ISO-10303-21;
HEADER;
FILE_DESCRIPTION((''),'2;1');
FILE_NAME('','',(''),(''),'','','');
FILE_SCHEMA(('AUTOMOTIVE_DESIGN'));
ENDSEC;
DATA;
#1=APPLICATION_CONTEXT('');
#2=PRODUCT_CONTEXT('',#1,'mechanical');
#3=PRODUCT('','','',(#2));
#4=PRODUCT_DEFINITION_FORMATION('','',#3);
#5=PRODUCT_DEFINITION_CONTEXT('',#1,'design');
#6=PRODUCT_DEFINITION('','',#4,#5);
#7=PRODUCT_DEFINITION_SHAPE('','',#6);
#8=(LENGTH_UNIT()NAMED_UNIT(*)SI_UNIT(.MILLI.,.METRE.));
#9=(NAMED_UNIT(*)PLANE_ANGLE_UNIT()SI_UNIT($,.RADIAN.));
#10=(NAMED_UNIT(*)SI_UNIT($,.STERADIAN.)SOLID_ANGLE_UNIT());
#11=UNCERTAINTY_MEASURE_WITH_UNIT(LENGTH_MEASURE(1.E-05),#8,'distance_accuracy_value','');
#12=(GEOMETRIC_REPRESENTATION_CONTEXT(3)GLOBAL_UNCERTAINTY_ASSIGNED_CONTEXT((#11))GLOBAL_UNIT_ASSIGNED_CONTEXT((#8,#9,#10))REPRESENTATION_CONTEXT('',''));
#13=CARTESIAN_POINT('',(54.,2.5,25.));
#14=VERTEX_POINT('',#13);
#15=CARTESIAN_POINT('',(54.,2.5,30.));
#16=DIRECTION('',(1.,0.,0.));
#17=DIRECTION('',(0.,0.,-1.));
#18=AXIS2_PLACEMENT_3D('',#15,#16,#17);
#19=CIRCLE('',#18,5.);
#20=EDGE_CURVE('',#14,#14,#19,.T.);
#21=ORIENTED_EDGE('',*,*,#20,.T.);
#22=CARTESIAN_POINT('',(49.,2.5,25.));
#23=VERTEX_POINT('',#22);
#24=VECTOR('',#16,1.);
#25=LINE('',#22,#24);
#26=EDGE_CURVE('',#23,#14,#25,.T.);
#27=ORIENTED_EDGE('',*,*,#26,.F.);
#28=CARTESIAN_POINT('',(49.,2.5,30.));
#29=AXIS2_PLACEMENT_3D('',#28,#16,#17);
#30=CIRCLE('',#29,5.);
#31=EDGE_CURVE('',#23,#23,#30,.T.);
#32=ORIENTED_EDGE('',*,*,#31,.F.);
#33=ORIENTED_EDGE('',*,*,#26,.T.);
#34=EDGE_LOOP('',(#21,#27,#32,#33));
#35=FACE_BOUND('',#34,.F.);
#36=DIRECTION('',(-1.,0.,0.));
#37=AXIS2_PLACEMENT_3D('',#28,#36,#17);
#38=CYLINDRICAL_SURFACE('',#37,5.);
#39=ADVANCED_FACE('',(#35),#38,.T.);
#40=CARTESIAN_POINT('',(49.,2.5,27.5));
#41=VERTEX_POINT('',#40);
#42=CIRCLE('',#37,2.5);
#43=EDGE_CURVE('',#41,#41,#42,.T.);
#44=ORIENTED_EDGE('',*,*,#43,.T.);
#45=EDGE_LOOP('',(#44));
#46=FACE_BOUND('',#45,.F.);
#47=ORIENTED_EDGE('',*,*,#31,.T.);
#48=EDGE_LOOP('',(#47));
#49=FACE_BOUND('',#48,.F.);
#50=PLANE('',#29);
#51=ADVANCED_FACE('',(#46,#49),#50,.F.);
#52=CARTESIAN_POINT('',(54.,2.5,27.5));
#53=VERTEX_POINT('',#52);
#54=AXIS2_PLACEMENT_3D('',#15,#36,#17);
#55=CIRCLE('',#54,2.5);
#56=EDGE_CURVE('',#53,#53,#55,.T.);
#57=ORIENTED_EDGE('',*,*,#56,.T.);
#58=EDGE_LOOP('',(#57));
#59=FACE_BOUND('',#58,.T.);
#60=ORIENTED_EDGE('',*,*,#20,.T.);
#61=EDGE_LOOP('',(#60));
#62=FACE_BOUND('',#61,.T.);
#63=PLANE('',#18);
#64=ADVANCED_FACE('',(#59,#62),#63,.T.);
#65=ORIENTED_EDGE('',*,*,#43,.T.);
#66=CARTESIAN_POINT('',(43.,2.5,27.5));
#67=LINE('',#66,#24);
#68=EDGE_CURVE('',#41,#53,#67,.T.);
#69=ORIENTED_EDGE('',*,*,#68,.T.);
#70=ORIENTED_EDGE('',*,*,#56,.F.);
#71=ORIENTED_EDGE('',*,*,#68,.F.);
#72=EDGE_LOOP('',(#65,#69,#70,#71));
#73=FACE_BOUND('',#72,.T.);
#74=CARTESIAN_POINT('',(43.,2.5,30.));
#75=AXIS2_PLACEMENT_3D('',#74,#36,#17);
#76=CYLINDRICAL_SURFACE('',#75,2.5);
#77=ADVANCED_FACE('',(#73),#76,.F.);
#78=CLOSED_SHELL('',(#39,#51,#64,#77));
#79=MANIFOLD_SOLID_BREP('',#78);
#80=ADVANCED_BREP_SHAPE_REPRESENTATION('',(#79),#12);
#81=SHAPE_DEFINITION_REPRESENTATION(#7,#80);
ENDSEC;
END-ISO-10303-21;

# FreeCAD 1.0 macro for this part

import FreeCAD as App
import Part
import Sketcher

doc = App.newDocument("Part")
body = doc.addObject("PartDesign::Body", "Body")

# Sketch on XY plane
sketch1 = body.newObject("Sketcher::SketchObject", "Sketch")
sketch1.AttachmentSupport = (doc.getObject("XY_Plane"), [""])
sketch1.MapMode = "FlatFace"
sketch1.AttachmentOffset = App.Placement(App.Vector(0, 0, 43), App.Rotation())
sketch1.addGeometry(Part.Circle(App.Vector(25, 25, 0), App.Vector(0, 0, 1), 2.5), False)
sketch1.addConstraint([
    Sketcher.Constraint("Diameter", 0, 5.0),
    Sketcher.Constraint("DistanceX", -1, 1, 0, 3, 25.0),
    Sketcher.Constraint("DistanceY", -1, 1, 0, 3, 25.0),
])
pad1 = body.newObject("PartDesign::Pad", "Pad")
pad1.Profile = sketch1
pad1.Length = 25
body2 = doc.addObject("PartDesign::Body", "Body001")

# Sketch on XY plane
sketch2 = body2.newObject("Sketcher::SketchObject", "Sketch001")
sketch2.AttachmentSupport = (doc.getObject("XY_Plane001"), [""])
sketch2.MapMode = "FlatFace"
sketch2.AttachmentOffset = App.Placement(App.Vector(0, 0, 49), App.Rotation())
sketch2.addGeometry(Part.Circle(App.Vector(25, 25, 0), App.Vector(0, 0, 1), 5), False)
sketch2.addConstraint([
    Sketcher.Constraint("Diameter", 0, 10.0),
    Sketcher.Constraint("DistanceX", -1, 1, 0, 3, 25.0),
    Sketcher.Constraint("DistanceY", -1, 1, 0, 3, 25.0),
])
pad2 = body2.newObject("PartDesign::Pad", "Pad001")
pad2.Profile = sketch2
pad2.Length = 5
doc.recompute()

boolean = body2.newObject("PartDesign::Boolean", "Boolean")
boolean.Type = "Cut"
boolean.addObjects([body])
body3 = doc.addObject("PartDesign::Body", "Body002")
doc.recompute()

body2.Placement = App.Placement(App.Vector(0, -22.5, 55), App.Rotation(App.Vector(0, 1, 0), 90))
boolean2 = body3.newObject("PartDesign::Boolean", "Boolean001")
boolean2.Type = "Fuse"
boolean2.addObjects([body2])

doc.recompute()
